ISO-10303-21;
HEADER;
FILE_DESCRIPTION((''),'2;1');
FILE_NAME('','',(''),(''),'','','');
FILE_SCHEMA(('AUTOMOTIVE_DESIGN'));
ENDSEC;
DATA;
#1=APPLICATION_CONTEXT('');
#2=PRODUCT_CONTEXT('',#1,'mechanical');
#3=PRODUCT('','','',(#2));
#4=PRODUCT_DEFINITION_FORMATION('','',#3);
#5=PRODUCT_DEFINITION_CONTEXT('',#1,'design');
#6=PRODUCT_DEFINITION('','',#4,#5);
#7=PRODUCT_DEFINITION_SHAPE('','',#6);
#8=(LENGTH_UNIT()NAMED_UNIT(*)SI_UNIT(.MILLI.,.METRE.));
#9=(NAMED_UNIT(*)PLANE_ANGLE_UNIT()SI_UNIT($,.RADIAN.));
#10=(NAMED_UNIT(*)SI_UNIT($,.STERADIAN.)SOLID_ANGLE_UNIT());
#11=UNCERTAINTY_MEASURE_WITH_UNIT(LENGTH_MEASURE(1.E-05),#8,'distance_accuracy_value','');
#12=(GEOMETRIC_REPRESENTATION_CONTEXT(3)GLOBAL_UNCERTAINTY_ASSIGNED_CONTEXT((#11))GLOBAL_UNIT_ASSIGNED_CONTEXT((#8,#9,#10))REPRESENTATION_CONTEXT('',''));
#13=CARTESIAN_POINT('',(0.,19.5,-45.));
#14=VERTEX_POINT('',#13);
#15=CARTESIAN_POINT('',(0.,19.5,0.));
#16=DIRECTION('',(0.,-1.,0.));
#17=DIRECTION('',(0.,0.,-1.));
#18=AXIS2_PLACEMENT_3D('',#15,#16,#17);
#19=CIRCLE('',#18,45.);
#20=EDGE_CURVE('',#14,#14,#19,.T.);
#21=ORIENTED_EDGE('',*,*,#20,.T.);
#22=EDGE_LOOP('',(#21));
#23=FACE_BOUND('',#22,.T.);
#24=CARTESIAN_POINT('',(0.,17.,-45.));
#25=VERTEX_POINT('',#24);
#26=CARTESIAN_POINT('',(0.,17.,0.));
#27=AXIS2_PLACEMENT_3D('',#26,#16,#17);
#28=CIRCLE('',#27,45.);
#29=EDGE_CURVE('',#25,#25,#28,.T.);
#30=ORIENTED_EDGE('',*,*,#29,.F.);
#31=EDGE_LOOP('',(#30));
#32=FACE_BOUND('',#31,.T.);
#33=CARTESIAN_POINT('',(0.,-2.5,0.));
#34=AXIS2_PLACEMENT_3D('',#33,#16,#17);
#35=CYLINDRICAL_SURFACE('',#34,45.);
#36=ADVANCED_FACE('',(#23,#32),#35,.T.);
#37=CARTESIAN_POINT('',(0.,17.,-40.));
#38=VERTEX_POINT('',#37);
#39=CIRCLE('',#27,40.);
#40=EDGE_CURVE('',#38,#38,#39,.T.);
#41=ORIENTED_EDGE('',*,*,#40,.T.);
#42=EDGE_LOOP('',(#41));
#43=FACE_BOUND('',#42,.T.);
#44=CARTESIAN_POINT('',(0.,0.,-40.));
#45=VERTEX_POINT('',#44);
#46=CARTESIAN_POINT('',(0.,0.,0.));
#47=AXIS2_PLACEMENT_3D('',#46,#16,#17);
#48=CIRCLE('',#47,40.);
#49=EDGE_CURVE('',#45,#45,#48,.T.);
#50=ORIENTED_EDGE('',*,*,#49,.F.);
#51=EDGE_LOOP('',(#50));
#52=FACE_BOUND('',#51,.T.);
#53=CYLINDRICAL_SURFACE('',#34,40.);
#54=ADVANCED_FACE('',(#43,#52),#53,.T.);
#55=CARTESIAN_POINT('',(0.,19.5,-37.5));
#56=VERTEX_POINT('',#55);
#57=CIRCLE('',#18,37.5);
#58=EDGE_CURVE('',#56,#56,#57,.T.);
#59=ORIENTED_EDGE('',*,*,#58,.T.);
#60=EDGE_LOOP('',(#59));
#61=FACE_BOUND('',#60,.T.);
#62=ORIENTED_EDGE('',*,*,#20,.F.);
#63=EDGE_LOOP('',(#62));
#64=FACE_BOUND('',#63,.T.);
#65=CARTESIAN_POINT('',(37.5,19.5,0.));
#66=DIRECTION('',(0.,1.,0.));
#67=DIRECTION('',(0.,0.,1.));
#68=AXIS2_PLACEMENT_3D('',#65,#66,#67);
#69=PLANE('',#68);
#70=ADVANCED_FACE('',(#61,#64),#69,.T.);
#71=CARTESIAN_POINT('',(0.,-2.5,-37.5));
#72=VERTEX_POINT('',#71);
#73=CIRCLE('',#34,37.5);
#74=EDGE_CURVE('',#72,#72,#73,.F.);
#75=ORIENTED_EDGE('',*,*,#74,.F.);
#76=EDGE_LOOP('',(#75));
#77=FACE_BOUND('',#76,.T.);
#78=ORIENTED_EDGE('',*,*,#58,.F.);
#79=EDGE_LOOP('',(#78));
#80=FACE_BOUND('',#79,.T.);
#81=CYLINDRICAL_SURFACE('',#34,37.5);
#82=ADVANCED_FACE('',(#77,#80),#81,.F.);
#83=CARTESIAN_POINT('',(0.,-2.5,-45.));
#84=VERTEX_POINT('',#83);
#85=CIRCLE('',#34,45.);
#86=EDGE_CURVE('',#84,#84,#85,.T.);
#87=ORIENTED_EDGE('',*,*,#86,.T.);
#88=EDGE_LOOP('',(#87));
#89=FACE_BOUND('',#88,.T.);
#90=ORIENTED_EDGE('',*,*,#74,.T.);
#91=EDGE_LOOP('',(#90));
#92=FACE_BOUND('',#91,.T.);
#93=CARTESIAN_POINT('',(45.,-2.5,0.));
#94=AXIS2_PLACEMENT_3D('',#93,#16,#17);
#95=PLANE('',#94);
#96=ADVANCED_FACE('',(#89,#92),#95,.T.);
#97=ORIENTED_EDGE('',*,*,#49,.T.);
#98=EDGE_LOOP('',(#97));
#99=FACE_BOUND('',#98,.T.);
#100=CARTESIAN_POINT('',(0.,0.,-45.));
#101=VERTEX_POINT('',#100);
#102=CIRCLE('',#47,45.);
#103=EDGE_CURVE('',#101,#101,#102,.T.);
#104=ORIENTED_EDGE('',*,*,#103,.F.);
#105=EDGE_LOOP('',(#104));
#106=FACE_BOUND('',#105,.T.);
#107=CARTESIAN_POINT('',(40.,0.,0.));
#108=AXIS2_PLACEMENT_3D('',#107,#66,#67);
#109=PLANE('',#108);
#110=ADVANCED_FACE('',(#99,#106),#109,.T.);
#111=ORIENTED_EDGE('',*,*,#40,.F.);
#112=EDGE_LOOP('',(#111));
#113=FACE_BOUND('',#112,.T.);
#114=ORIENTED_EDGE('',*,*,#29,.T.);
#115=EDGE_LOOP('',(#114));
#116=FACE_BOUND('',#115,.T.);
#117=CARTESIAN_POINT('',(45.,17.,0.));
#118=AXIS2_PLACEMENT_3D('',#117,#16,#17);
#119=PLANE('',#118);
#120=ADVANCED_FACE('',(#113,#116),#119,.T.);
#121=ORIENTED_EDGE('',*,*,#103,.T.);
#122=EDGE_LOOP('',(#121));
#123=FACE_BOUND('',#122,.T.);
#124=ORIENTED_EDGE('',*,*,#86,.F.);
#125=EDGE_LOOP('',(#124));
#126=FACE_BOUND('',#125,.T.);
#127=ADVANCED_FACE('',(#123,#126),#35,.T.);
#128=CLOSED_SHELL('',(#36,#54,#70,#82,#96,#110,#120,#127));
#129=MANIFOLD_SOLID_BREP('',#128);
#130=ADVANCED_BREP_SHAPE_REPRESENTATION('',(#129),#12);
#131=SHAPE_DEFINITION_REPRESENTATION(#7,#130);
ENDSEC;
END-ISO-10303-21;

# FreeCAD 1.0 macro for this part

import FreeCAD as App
import Part
import Sketcher

doc = App.newDocument("Part")
body = doc.addObject("PartDesign::Body", "Body")

sketch1 = body.newObject("Sketcher::SketchObject", "Sketch")
sketch1.AttachmentSupport = (doc.getObject("XY_Plane"), [""])
sketch1.MapMode = "FlatFace"
sketch1.addGeometry([
    Part.LineSegment(App.Vector(37.5, 0, 0), App.Vector(0, 0, 0)),
    Part.LineSegment(App.Vector(0, 0, 0), App.Vector(0, -2.5, 0)),
    Part.LineSegment(App.Vector(0, -2.5, 0), App.Vector(45, -2.5, 0)),
    Part.LineSegment(App.Vector(45, -2.5, 0), App.Vector(45, 0, 0)),
    Part.LineSegment(App.Vector(45, 0, 0), App.Vector(40, 0, 0)),
    Part.LineSegment(App.Vector(40, 0, 0), App.Vector(40, 17, 0)),
    Part.LineSegment(App.Vector(40, 17, 0), App.Vector(45, 17, 0)),
    Part.LineSegment(App.Vector(45, 17, 0), App.Vector(45, 19.5, 0)),
    Part.LineSegment(App.Vector(45, 19.5, 0), App.Vector(37.5, 19.5, 0)),
    Part.LineSegment(App.Vector(37.5, 19.5, 0), App.Vector(37.5, 0, 0)),
], False)
sketch1.addConstraint([
    Sketcher.Constraint("Coincident", 0, 2, 1, 1),
    Sketcher.Constraint("Coincident", 1, 2, 2, 1),
    Sketcher.Constraint("Coincident", 2, 2, 3, 1),
    Sketcher.Constraint("Coincident", 3, 2, 4, 1),
    Sketcher.Constraint("Coincident", 4, 2, 5, 1),
    Sketcher.Constraint("Coincident", 5, 2, 6, 1),
    Sketcher.Constraint("Coincident", 6, 2, 7, 1),
    Sketcher.Constraint("Coincident", 7, 2, 8, 1),
    Sketcher.Constraint("Coincident", 8, 2, 9, 1),
    Sketcher.Constraint("Coincident", 9, 2, 0, 1),
    Sketcher.Constraint("Horizontal", 0),
    Sketcher.Constraint("Vertical", 1),
    Sketcher.Constraint("Horizontal", 2),
    Sketcher.Constraint("Vertical", 3),
    Sketcher.Constraint("Horizontal", 4),
    Sketcher.Constraint("Vertical", 5),
    Sketcher.Constraint("Horizontal", 6),
    Sketcher.Constraint("Vertical", 7),
    Sketcher.Constraint("Horizontal", 8),
    Sketcher.Constraint("Vertical", 9),
    Sketcher.Constraint("Coincident", 0, 2, -1, 1),
    Sketcher.Constraint("PointOnObject", 3, 2, -1),
    Sketcher.Constraint("Vertical", 3, 2, 6, 2),
    Sketcher.Constraint("Equal", 3, 7),
    Sketcher.Constraint("DistanceX", 2, 1, 2, 2, 45.0),
    Sketcher.Constraint("DistanceX", 4, 2, 4, 1, 5.0),
    Sketcher.Constraint("DistanceY", 5, 1, 5, 2, 17.0),
    Sketcher.Constraint("DistanceX", 0, 2, 0, 1, 37.5),
    Sketcher.Constraint("DistanceY", 1, 2, 1, 1, 2.5),
])
revolution = body.newObject("PartDesign::Revolution", "Revolution")
revolution.Profile = sketch1
revolution.ReferenceAxis = (sketch1, ["V_Axis"])
revolution.Angle = 360

sketch2 = body.newObject("Sketcher::SketchObject", "Sketch001")
sketch2.AttachmentSupport = (doc.getObject("XZ_Plane"), [""])
sketch2.MapMode = "FlatFace"
sketch2.addGeometry(Part.Circle(App.Vector(0, 0, 0), App.Vector(0, 0, 1), 38), False)
sketch2.addConstraint([
    Sketcher.Constraint("Coincident", 0, 3, -1, 1),
    Sketcher.Constraint("Diameter", 0, 75.0),
])
pocket1 = body.newObject("PartDesign::Pocket", "Pocket")
pocket1.Profile = sketch2
pocket1.Type = "UpToFirst"
pocket1.Reversed = True

doc.recompute()
